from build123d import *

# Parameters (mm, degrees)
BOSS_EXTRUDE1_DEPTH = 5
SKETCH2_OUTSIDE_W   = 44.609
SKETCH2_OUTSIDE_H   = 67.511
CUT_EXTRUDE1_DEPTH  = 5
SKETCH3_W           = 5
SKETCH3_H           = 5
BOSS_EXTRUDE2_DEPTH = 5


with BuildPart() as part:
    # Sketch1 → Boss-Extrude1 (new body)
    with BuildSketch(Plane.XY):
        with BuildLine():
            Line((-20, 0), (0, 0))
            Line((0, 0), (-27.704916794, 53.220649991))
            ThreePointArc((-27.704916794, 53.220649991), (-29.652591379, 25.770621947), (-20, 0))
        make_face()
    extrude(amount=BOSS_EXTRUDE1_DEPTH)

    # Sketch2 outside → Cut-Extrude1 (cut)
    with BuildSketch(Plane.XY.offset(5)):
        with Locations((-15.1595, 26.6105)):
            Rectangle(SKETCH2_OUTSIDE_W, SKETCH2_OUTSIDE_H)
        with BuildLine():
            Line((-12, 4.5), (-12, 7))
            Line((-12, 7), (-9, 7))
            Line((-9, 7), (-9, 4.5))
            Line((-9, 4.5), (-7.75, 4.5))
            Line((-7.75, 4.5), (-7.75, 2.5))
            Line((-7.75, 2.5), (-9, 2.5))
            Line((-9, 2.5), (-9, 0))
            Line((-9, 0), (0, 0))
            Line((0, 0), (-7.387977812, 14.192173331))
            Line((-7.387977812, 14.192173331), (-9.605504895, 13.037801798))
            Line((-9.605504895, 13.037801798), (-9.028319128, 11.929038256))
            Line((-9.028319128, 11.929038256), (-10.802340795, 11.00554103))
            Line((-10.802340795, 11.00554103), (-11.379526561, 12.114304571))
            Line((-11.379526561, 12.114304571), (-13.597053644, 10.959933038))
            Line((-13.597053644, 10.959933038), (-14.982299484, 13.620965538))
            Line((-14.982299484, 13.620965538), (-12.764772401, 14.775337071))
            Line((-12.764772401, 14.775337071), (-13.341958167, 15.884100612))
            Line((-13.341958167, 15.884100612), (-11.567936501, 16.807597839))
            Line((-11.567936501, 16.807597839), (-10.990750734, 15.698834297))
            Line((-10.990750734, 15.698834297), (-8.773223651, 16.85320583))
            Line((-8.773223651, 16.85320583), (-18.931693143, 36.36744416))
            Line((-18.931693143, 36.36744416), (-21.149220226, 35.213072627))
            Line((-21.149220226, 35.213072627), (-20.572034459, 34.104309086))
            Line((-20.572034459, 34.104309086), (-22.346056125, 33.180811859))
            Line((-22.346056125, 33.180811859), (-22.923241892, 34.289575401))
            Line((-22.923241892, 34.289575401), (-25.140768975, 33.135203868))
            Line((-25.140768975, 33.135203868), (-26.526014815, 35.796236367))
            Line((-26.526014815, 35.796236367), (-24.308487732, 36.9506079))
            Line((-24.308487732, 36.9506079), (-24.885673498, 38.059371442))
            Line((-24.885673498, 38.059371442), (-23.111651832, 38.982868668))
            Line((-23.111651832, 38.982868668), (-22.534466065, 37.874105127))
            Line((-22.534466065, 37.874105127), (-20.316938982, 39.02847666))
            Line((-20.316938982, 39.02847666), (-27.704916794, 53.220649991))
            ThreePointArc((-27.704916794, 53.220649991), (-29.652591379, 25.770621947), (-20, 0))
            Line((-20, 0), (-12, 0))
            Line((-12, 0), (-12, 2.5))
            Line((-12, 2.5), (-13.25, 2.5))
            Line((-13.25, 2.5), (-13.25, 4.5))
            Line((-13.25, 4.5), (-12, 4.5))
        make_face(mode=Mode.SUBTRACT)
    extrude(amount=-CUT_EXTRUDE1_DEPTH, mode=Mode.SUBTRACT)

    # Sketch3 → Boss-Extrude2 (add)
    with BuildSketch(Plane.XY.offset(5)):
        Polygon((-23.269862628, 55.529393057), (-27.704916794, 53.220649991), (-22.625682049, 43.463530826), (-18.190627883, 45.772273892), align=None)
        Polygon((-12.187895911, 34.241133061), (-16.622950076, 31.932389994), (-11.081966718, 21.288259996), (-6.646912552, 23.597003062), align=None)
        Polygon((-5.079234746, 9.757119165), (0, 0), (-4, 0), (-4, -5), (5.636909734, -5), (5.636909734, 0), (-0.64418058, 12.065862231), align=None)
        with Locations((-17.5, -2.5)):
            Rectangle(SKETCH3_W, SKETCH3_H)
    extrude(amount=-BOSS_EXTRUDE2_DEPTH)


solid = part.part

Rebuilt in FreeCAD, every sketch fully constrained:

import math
import FreeCAD as App
import Part
import Sketcher
Q = App.Units.Quantity


def add_polygon(sketch, points):
    """Adds a closed chain of lines whose ends are joined by coincident constraints."""
    first, n = sketch.GeometryCount, len(points)
    for a, b in zip(points, points[1:] + points[:1]):
        sketch.addGeometry(Part.LineSegment(App.Vector(*a, 0), App.Vector(*b, 0)), False)
    for i in range(n):
        sketch.addConstraint(Sketcher.Constraint("Coincident", first + i, 2, first + (i + 1) % n, 1))

doc = App.newDocument("Part")
body = doc.addObject("PartDesign::Body", "Body")

# Sketch on XY plane
sketch1 = body.newObject("Sketcher::SketchObject", "Sketch")
sketch1.AttachmentSupport = (doc.getObject("XY_Plane"), [""])
sketch1.MapMode = "FlatFace"
sketch1.addGeometry(Part.LineSegment(App.Vector(-20, 0, 0), App.Vector(0, 0, 0)), False)
sketch1.addGeometry(Part.LineSegment(App.Vector(0, 0, 0), App.Vector(-28, 53, 0)), False)
sketch1.addGeometry(Part.ArcOfCircle(Part.Circle(App.Vector(34, 35, 0), App.Vector(0, 0, 1), 65), math.radians(164), math.radians(213)), False)
sketch1.addConstraint(Sketcher.Constraint("Coincident", 0, 2, 1, 1))
sketch1.addConstraint(Sketcher.Constraint("Coincident", 1, 2, 2, 1))
sketch1.addConstraint(Sketcher.Constraint("Coincident", 2, 2, 0, 1))
sketch1.addConstraint(Sketcher.Constraint("Horizontal", 0))
sketch1.addConstraint(Sketcher.Constraint("Coincident", 0, 2, -1, 1))
sketch1.addConstraint(Sketcher.Constraint("DistanceX", 0, 1, 0, 2, Q("20 mm")))
sketch1.addConstraint(Sketcher.Constraint("Distance", 1, Q("60 mm")))
sketch1.addConstraint(Sketcher.Constraint("Angle", 1, Q("117.5 deg")))
sketch1.addConstraint(Sketcher.Constraint("Radius", 2, Q("64.6092 mm")))
pad1 = body.newObject("PartDesign::Pad", "Pad")
pad1.Profile = sketch1
pad1.Length = 5

# Sketch on XY plane
sketch2 = body.newObject("Sketcher::SketchObject", "Sketch001")
sketch2.AttachmentSupport = (doc.getObject("XY_Plane"), [""])
sketch2.MapMode = "FlatFace"
sketch2.AttachmentOffset = App.Placement(App.Vector(0, 0, 5), App.Rotation())
add_polygon(sketch2, [(-37.5, 60.4), (-37.5, -7.1), (7.1, -7.1), (7.1, 60.4)])  # lines 0-3
sketch2.addGeometry(Part.LineSegment(App.Vector(-12, 7, 0), App.Vector(-12, 4.5, 0)), False)  # 4
sketch2.addGeometry(Part.LineSegment(App.Vector(-12, 4.5, 0), App.Vector(-13.2, 4.5, 0)), False)  # 5
sketch2.addGeometry(Part.LineSegment(App.Vector(-13.2, 4.5, 0), App.Vector(-13.2, 2.5, 0)), False)  # 6
sketch2.addGeometry(Part.LineSegment(App.Vector(-13.2, 2.5, 0), App.Vector(-12, 2.5, 0)), False)  # 7
sketch2.addGeometry(Part.LineSegment(App.Vector(-12, 2.5, 0), App.Vector(-12, 0, 0)), False)  # 8
sketch2.addGeometry(Part.LineSegment(App.Vector(-12, 0, 0), App.Vector(-20, 0, 0)), False)  # 9
sketch2.addGeometry(Part.ArcOfCircle(Part.Circle(App.Vector(34.3, 35, 0), App.Vector(0, 0, 1), 64.6), math.radians(164), math.radians(213)), False)  # 10
sketch2.addGeometry(Part.LineSegment(App.Vector(-27.7, 53.2, 0), App.Vector(-20.3, 39, 0)), False)  # 11
sketch2.addGeometry(Part.LineSegment(App.Vector(-20.3, 39, 0), App.Vector(-22.5, 37.9, 0)), False)  # 12
sketch2.addGeometry(Part.LineSegment(App.Vector(-22.5, 37.9, 0), App.Vector(-23.1, 39, 0)), False)  # 13
sketch2.addGeometry(Part.LineSegment(App.Vector(-23.1, 39, 0), App.Vector(-24.9, 38.1, 0)), False)  # 14
sketch2.addGeometry(Part.LineSegment(App.Vector(-24.9, 38.1, 0), App.Vector(-24.3, 37, 0)), False)  # 15
sketch2.addGeometry(Part.LineSegment(App.Vector(-24.3, 37, 0), App.Vector(-26.5, 35.8, 0)), False)  # 16
sketch2.addGeometry(Part.LineSegment(App.Vector(-26.5, 35.8, 0), App.Vector(-25.1, 33.1, 0)), False)  # 17
sketch2.addGeometry(Part.LineSegment(App.Vector(-25.1, 33.1, 0), App.Vector(-22.9, 34.3, 0)), False)  # 18
sketch2.addGeometry(Part.LineSegment(App.Vector(-22.9, 34.3, 0), App.Vector(-22.3, 33.2, 0)), False)  # 19
sketch2.addGeometry(Part.LineSegment(App.Vector(-22.3, 33.2, 0), App.Vector(-20.6, 34.1, 0)), False)  # 20
sketch2.addGeometry(Part.LineSegment(App.Vector(-20.6, 34.1, 0), App.Vector(-21.1, 35.2, 0)), False)  # 21
sketch2.addGeometry(Part.LineSegment(App.Vector(-21.1, 35.2, 0), App.Vector(-18.9, 36.4, 0)), False)  # 22
sketch2.addGeometry(Part.LineSegment(App.Vector(-18.9, 36.4, 0), App.Vector(-8.8, 16.9, 0)), False)  # 23
sketch2.addGeometry(Part.LineSegment(App.Vector(-8.8, 16.9, 0), App.Vector(-11, 15.7, 0)), False)  # 24
sketch2.addGeometry(Part.LineSegment(App.Vector(-11, 15.7, 0), App.Vector(-11.6, 16.8, 0)), False)  # 25
sketch2.addGeometry(Part.LineSegment(App.Vector(-11.6, 16.8, 0), App.Vector(-13.3, 15.9, 0)), False)  # 26
sketch2.addGeometry(Part.LineSegment(App.Vector(-13.3, 15.9, 0), App.Vector(-12.8, 14.8, 0)), False)  # 27
sketch2.addGeometry(Part.LineSegment(App.Vector(-12.8, 14.8, 0), App.Vector(-15, 13.6, 0)), False)  # 28
sketch2.addGeometry(Part.LineSegment(App.Vector(-15, 13.6, 0), App.Vector(-13.6, 11, 0)), False)  # 29
sketch2.addGeometry(Part.LineSegment(App.Vector(-13.6, 11, 0), App.Vector(-11.4, 12.1, 0)), False)  # 30
sketch2.addGeometry(Part.LineSegment(App.Vector(-11.4, 12.1, 0), App.Vector(-10.8, 11, 0)), False)  # 31
sketch2.addGeometry(Part.LineSegment(App.Vector(-10.8, 11, 0), App.Vector(-9, 11.9, 0)), False)  # 32
sketch2.addGeometry(Part.LineSegment(App.Vector(-9, 11.9, 0), App.Vector(-9.6, 13, 0)), False)  # 33
sketch2.addGeometry(Part.LineSegment(App.Vector(-9.6, 13, 0), App.Vector(-7.4, 14.2, 0)), False)  # 34
sketch2.addGeometry(Part.LineSegment(App.Vector(-7.4, 14.2, 0), App.Vector(0, 0, 0)), False)  # 35
sketch2.addGeometry(Part.LineSegment(App.Vector(0, 0, 0), App.Vector(-9, 0, 0)), False)  # 36
sketch2.addGeometry(Part.LineSegment(App.Vector(-9, 0, 0), App.Vector(-9, 2.5, 0)), False)  # 37
sketch2.addGeometry(Part.LineSegment(App.Vector(-9, 2.5, 0), App.Vector(-7.8, 2.5, 0)), False)  # 38
sketch2.addGeometry(Part.LineSegment(App.Vector(-7.8, 2.5, 0), App.Vector(-7.8, 4.5, 0)), False)  # 39
sketch2.addGeometry(Part.LineSegment(App.Vector(-7.8, 4.5, 0), App.Vector(-9, 4.5, 0)), False)  # 40
sketch2.addGeometry(Part.LineSegment(App.Vector(-9, 4.5, 0), App.Vector(-9, 7, 0)), False)  # 41
sketch2.addGeometry(Part.LineSegment(App.Vector(-9, 7, 0), App.Vector(-12, 7, 0)), False)  # 42
sketch2.addConstraint(Sketcher.Constraint("Coincident", 4, 2, 5, 1))
sketch2.addConstraint(Sketcher.Constraint("Coincident", 5, 2, 6, 1))
sketch2.addConstraint(Sketcher.Constraint("Coincident", 6, 2, 7, 1))
sketch2.addConstraint(Sketcher.Constraint("Coincident", 7, 2, 8, 1))
sketch2.addConstraint(Sketcher.Constraint("Coincident", 8, 2, 9, 1))
sketch2.addConstraint(Sketcher.Constraint("Coincident", 9, 2, 10, 2))
sketch2.addConstraint(Sketcher.Constraint("Coincident", 10, 1, 11, 1))
sketch2.addConstraint(Sketcher.Constraint("Coincident", 11, 2, 12, 1))
sketch2.addConstraint(Sketcher.Constraint("Coincident", 12, 2, 13, 1))
sketch2.addConstraint(Sketcher.Constraint("Coincident", 13, 2, 14, 1))
sketch2.addConstraint(Sketcher.Constraint("Coincident", 14, 2, 15, 1))
sketch2.addConstraint(Sketcher.Constraint("Coincident", 15, 2, 16, 1))
sketch2.addConstraint(Sketcher.Constraint("Coincident", 16, 2, 17, 1))
sketch2.addConstraint(Sketcher.Constraint("Coincident", 17, 2, 18, 1))
sketch2.addConstraint(Sketcher.Constraint("Coincident", 18, 2, 19, 1))
sketch2.addConstraint(Sketcher.Constraint("Coincident", 19, 2, 20, 1))
sketch2.addConstraint(Sketcher.Constraint("Coincident", 20, 2, 21, 1))
sketch2.addConstraint(Sketcher.Constraint("Coincident", 21, 2, 22, 1))
sketch2.addConstraint(Sketcher.Constraint("Coincident", 22, 2, 23, 1))
sketch2.addConstraint(Sketcher.Constraint("Coincident", 23, 2, 24, 1))
sketch2.addConstraint(Sketcher.Constraint("Coincident", 24, 2, 25, 1))
sketch2.addConstraint(Sketcher.Constraint("Coincident", 25, 2, 26, 1))
sketch2.addConstraint(Sketcher.Constraint("Coincident", 26, 2, 27, 1))
sketch2.addConstraint(Sketcher.Constraint("Coincident", 27, 2, 28, 1))
sketch2.addConstraint(Sketcher.Constraint("Coincident", 28, 2, 29, 1))
sketch2.addConstraint(Sketcher.Constraint("Coincident", 29, 2, 30, 1))
sketch2.addConstraint(Sketcher.Constraint("Coincident", 30, 2, 31, 1))
sketch2.addConstraint(Sketcher.Constraint("Coincident", 31, 2, 32, 1))
sketch2.addConstraint(Sketcher.Constraint("Coincident", 32, 2, 33, 1))
sketch2.addConstraint(Sketcher.Constraint("Coincident", 33, 2, 34, 1))
sketch2.addConstraint(Sketcher.Constraint("Coincident", 34, 2, 35, 1))
sketch2.addConstraint(Sketcher.Constraint("Coincident", 35, 2, 36, 1))
sketch2.addConstraint(Sketcher.Constraint("Coincident", 36, 2, 37, 1))
sketch2.addConstraint(Sketcher.Constraint("Coincident", 37, 2, 38, 1))
sketch2.addConstraint(Sketcher.Constraint("Coincident", 38, 2, 39, 1))
sketch2.addConstraint(Sketcher.Constraint("Coincident", 39, 2, 40, 1))
sketch2.addConstraint(Sketcher.Constraint("Coincident", 40, 2, 41, 1))
sketch2.addConstraint(Sketcher.Constraint("Coincident", 41, 2, 42, 1))
sketch2.addConstraint(Sketcher.Constraint("Coincident", 42, 2, 4, 1))
sketch2.addConstraint(Sketcher.Constraint("Vertical", 0))
sketch2.addConstraint(Sketcher.Constraint("Horizontal", 1))
sketch2.addConstraint(Sketcher.Constraint("Vertical", 2))
sketch2.addConstraint(Sketcher.Constraint("Horizontal", 3))
sketch2.addConstraint(Sketcher.Constraint("Vertical", 4))
sketch2.addConstraint(Sketcher.Constraint("Horizontal", 5))
sketch2.addConstraint(Sketcher.Constraint("Vertical", 6))
sketch2.addConstraint(Sketcher.Constraint("Horizontal", 7))
sketch2.addConstraint(Sketcher.Constraint("Vertical", 8))
sketch2.addConstraint(Sketcher.Constraint("Horizontal", 9))
sketch2.addConstraint(Sketcher.Constraint("Horizontal", 36))
sketch2.addConstraint(Sketcher.Constraint("Vertical", 37))
sketch2.addConstraint(Sketcher.Constraint("Horizontal", 38))
sketch2.addConstraint(Sketcher.Constraint("Vertical", 39))
sketch2.addConstraint(Sketcher.Constraint("Horizontal", 40))
sketch2.addConstraint(Sketcher.Constraint("Vertical", 41))
sketch2.addConstraint(Sketcher.Constraint("Horizontal", 42))
sketch2.addConstraint(Sketcher.Constraint("Coincident", 35, 2, -1, 1))
sketch2.addConstraint(Sketcher.Constraint("PointOnObject", 8, 2, -1))
sketch2.addConstraint(Sketcher.Constraint("Perpendicular", 11, 12))
sketch2.addConstraint(Sketcher.Constraint("Perpendicular", 12, 13))
sketch2.addConstraint(Sketcher.Constraint("Perpendicular", 13, 14))
sketch2.addConstraint(Sketcher.Constraint("Perpendicular", 14, 15))
sketch2.addConstraint(Sketcher.Constraint("Perpendicular", 15, 16))
sketch2.addConstraint(Sketcher.Constraint("Perpendicular", 16, 17))
sketch2.addConstraint(Sketcher.Constraint("Perpendicular", 17, 18))
sketch2.addConstraint(Sketcher.Constraint("Perpendicular", 18, 19))
sketch2.addConstraint(Sketcher.Constraint("Perpendicular", 19, 20))
sketch2.addConstraint(Sketcher.Constraint("Perpendicular", 20, 21))
sketch2.addConstraint(Sketcher.Constraint("Perpendicular", 21, 22))
sketch2.addConstraint(Sketcher.Constraint("Perpendicular", 22, 23))
sketch2.addConstraint(Sketcher.Constraint("Perpendicular", 23, 24))
sketch2.addConstraint(Sketcher.Constraint("Perpendicular", 24, 25))
sketch2.addConstraint(Sketcher.Constraint("Perpendicular", 25, 26))
sketch2.addConstraint(Sketcher.Constraint("Perpendicular", 26, 27))
sketch2.addConstraint(Sketcher.Constraint("Perpendicular", 27, 28))
sketch2.addConstraint(Sketcher.Constraint("Perpendicular", 28, 29))
sketch2.addConstraint(Sketcher.Constraint("Perpendicular", 29, 30))
sketch2.addConstraint(Sketcher.Constraint("Perpendicular", 30, 31))
sketch2.addConstraint(Sketcher.Constraint("Perpendicular", 31, 32))
sketch2.addConstraint(Sketcher.Constraint("Perpendicular", 32, 33))
sketch2.addConstraint(Sketcher.Constraint("Perpendicular", 33, 34))
sketch2.addConstraint(Sketcher.Constraint("Perpendicular", 34, 35))
sketch2.addConstraint(Sketcher.Constraint("Horizontal", 7, 2, 37, 2))
sketch2.addConstraint(Sketcher.Constraint("Horizontal", 5, 2, 39, 2))
sketch2.addConstraint(Sketcher.Constraint("Vertical", 4, 2, 7, 2))
sketch2.addConstraint(Sketcher.Constraint("Vertical", 37, 2, 40, 2))
sketch2.addConstraint(Sketcher.Constraint("Equal", 7, 38))
sketch2.addConstraint(Sketcher.Constraint("Equal", 4, 8))
sketch2.addConstraint(Sketcher.Constraint("Equal", 13, 15))
sketch2.addConstraint(Sketcher.Constraint("Equal", 12, 16))
sketch2.addConstraint(Sketcher.Constraint("Equal", 16, 18))
sketch2.addConstraint(Sketcher.Constraint("Equal", 15, 19))
sketch2.addConstraint(Sketcher.Constraint("Equal", 14, 20))
sketch2.addConstraint(Sketcher.Constraint("Equal", 19, 21))
sketch2.addConstraint(Sketcher.Constraint("Equal", 18, 22))
sketch2.addConstraint(Sketcher.Constraint("Equal", 22, 24))
sketch2.addConstraint(Sketcher.Constraint("Equal", 21, 25))
sketch2.addConstraint(Sketcher.Constraint("Equal", 20, 26))
sketch2.addConstraint(Sketcher.Constraint("Equal", 25, 27))
sketch2.addConstraint(Sketcher.Constraint("Equal", 24, 28))
sketch2.addConstraint(Sketcher.Constraint("Equal", 17, 29))
sketch2.addConstraint(Sketcher.Constraint("Equal", 28, 30))
sketch2.addConstraint(Sketcher.Constraint("Equal", 27, 31))
sketch2.addConstraint(Sketcher.Constraint("Equal", 26, 32))
sketch2.addConstraint(Sketcher.Constraint("Equal", 31, 33))
sketch2.addConstraint(Sketcher.Constraint("Equal", 30, 34))
sketch2.addConstraint(Sketcher.Constraint("Equal", 11, 35))
sketch2.addConstraint(Sketcher.Constraint("DistanceX", 9, 2, 9, 1, Q("8 mm")))
sketch2.addConstraint(Sketcher.Constraint("DistanceX", 36, 2, 36, 1, Q("9 mm")))
sketch2.addConstraint(Sketcher.Constraint("DistanceX", 42, 2, 42, 1, Q("3 mm")))
sketch2.addConstraint(Sketcher.Constraint("DistanceY", 6, 2, 6, 1, Q("2 mm")))
sketch2.addConstraint(Sketcher.Constraint("Distance", 11, Q("16 mm")))
sketch2.addConstraint(Sketcher.Constraint("Distance", 14, Q("2 mm")))
sketch2.addConstraint(Sketcher.Constraint("Distance", 17, Q("3 mm")))
sketch2.addConstraint(Sketcher.Constraint("Distance", 23, Q("22 mm")))
sketch2.addConstraint(Sketcher.Constraint("DistanceY", 4, 2, 4, 1, Q("2.5 mm")))
sketch2.addConstraint(Sketcher.Constraint("Angle", 11, Q("-62.5 deg")))
sketch2.addConstraint(Sketcher.Constraint("Distance", 12, Q("2.5 mm")))
sketch2.addConstraint(Sketcher.Constraint("DistanceX", 5, 2, 5, 1, Q("1.25 mm")))
sketch2.addConstraint(Sketcher.Constraint("Radius", 10, Q("64.6092 mm")))
sketch2.addConstraint(Sketcher.Constraint("Distance", 13, Q("1.25 mm")))
sketch2.addConstraint(Sketcher.Constraint("DistanceX", 1, 1, 1, 2, Q("44.609 mm")))
sketch2.addConstraint(Sketcher.Constraint("DistanceY", 0, 2, 0, 1, Q("67.511 mm")))
sketch2.addConstraint(Sketcher.Constraint("DistanceX", 0, 2, -1, 1, Q("37.464 mm")))
sketch2.addConstraint(Sketcher.Constraint("DistanceY", 0, 2, -1, 1, Q("7.145 mm")))
pocket1 = body.newObject("PartDesign::Pocket", "Pocket")
pocket1.Profile = sketch2
pocket1.Length = 5

# Sketch on XY plane
sketch3 = body.newObject("Sketcher::SketchObject", "Sketch002")
sketch3.AttachmentSupport = (doc.getObject("XY_Plane"), [""])
sketch3.MapMode = "FlatFace"
sketch3.AttachmentOffset = App.Placement(App.Vector(0, 0, 5), App.Rotation())
add_polygon(sketch3, [(-23.3, 55.5), (-27.7, 53.2), (-22.6, 43.5), (-18.2, 45.8)])  # lines 0-3
add_polygon(sketch3, [(-12.2, 34.2), (-16.6, 31.9), (-11.1, 21.3), (-6.6, 23.6)])  # lines 4-7
add_polygon(sketch3, [(-5.1, 9.8), (0, 0), (-4, 0), (-4, -5), (5.6, -5), (5.6, 0), (-0.6, 12.1)])  # lines 8-14
add_polygon(sketch3, [(-20, 0), (-20, -5), (-15, -5), (-15, 0)])  # lines 15-18
sketch3.addConstraint(Sketcher.Constraint("Horizontal", 9))
sketch3.addConstraint(Sketcher.Constraint("Vertical", 10))
sketch3.addConstraint(Sketcher.Constraint("Horizontal", 11))
sketch3.addConstraint(Sketcher.Constraint("Vertical", 12))
sketch3.addConstraint(Sketcher.Constraint("Vertical", 15))
sketch3.addConstraint(Sketcher.Constraint("Horizontal", 16))
sketch3.addConstraint(Sketcher.Constraint("Vertical", 17))
sketch3.addConstraint(Sketcher.Constraint("Horizontal", 18))
sketch3.addConstraint(Sketcher.Constraint("Coincident", 8, 2, -1, 1))
sketch3.addConstraint(Sketcher.Constraint("PointOnObject", 12, 2, -1))
sketch3.addConstraint(Sketcher.Constraint("PointOnObject", 17, 2, -1))
sketch3.addConstraint(Sketcher.Constraint("Perpendicular", 0, 1))
sketch3.addConstraint(Sketcher.Constraint("Perpendicular", 1, 2))
sketch3.addConstraint(Sketcher.Constraint("Perpendicular", 2, 3))
sketch3.addConstraint(Sketcher.Constraint("Perpendicular", 3, 4))
sketch3.addConstraint(Sketcher.Constraint("Perpendicular", 4, 5))
sketch3.addConstraint(Sketcher.Constraint("Perpendicular", 5, 6))
sketch3.addConstraint(Sketcher.Constraint("Perpendicular", 6, 7))
sketch3.addConstraint(Sketcher.Constraint("Parallel", 7, 8))
sketch3.addConstraint(Sketcher.Constraint("Parallel", 8, 13))
sketch3.addConstraint(Sketcher.Constraint("Perpendicular", 13, 14))
sketch3.addConstraint(Sketcher.Constraint("Horizontal", 11, 2, 15, 2))
sketch3.addConstraint(Sketcher.Constraint("Equal", 18, 10))
sketch3.addConstraint(Sketcher.Constraint("Equal", 2, 4))
sketch3.addConstraint(Sketcher.Constraint("Equal", 3, 8))
sketch3.addConstraint(Sketcher.Constraint("Equal", 6, 14))
sketch3.addConstraint(Sketcher.Constraint("DistanceX", 9, 2, 9, 1, Q("4 mm")))
sketch3.addConstraint(Sketcher.Constraint("DistanceX", 16, 1, 16, 2, Q("5 mm")))
sketch3.addConstraint(Sketcher.Constraint("Distance", 0, Q("5 mm")))
sketch3.addConstraint(Sketcher.Constraint("Distance", 1, Q("11 mm")))
sketch3.addConstraint(Sketcher.Constraint("Distance", 5, Q("12 mm")))
sketch3.addConstraint(Sketcher.Constraint("DistanceX", 15, 2, -1, 1, Q("20 mm")))
sketch3.addConstraint(Sketcher.Constraint("Angle", 0, Q("-152.5 deg")))
sketch3.addConstraint(Sketcher.Constraint("DistanceY", -1, 1, 0, 2, Q("53.22065 mm")))
sketch3.addConstraint(Sketcher.Constraint("DistanceX", 4, 2, -1, 1, Q("16.62295 mm")))
sketch3.addConstraint(Sketcher.Constraint("DistanceY", -1, 1, 4, 2, Q("31.93239 mm")))
sketch3.addConstraint(Sketcher.Constraint("DistanceX", 1, 2, 4, 2, Q("6.002732 mm")))
pad2 = body.newObject("PartDesign::Pad", "Pad001")
pad2.Profile = sketch3
pad2.Length = 5
pad2.Reversed = True

doc.recompute()
